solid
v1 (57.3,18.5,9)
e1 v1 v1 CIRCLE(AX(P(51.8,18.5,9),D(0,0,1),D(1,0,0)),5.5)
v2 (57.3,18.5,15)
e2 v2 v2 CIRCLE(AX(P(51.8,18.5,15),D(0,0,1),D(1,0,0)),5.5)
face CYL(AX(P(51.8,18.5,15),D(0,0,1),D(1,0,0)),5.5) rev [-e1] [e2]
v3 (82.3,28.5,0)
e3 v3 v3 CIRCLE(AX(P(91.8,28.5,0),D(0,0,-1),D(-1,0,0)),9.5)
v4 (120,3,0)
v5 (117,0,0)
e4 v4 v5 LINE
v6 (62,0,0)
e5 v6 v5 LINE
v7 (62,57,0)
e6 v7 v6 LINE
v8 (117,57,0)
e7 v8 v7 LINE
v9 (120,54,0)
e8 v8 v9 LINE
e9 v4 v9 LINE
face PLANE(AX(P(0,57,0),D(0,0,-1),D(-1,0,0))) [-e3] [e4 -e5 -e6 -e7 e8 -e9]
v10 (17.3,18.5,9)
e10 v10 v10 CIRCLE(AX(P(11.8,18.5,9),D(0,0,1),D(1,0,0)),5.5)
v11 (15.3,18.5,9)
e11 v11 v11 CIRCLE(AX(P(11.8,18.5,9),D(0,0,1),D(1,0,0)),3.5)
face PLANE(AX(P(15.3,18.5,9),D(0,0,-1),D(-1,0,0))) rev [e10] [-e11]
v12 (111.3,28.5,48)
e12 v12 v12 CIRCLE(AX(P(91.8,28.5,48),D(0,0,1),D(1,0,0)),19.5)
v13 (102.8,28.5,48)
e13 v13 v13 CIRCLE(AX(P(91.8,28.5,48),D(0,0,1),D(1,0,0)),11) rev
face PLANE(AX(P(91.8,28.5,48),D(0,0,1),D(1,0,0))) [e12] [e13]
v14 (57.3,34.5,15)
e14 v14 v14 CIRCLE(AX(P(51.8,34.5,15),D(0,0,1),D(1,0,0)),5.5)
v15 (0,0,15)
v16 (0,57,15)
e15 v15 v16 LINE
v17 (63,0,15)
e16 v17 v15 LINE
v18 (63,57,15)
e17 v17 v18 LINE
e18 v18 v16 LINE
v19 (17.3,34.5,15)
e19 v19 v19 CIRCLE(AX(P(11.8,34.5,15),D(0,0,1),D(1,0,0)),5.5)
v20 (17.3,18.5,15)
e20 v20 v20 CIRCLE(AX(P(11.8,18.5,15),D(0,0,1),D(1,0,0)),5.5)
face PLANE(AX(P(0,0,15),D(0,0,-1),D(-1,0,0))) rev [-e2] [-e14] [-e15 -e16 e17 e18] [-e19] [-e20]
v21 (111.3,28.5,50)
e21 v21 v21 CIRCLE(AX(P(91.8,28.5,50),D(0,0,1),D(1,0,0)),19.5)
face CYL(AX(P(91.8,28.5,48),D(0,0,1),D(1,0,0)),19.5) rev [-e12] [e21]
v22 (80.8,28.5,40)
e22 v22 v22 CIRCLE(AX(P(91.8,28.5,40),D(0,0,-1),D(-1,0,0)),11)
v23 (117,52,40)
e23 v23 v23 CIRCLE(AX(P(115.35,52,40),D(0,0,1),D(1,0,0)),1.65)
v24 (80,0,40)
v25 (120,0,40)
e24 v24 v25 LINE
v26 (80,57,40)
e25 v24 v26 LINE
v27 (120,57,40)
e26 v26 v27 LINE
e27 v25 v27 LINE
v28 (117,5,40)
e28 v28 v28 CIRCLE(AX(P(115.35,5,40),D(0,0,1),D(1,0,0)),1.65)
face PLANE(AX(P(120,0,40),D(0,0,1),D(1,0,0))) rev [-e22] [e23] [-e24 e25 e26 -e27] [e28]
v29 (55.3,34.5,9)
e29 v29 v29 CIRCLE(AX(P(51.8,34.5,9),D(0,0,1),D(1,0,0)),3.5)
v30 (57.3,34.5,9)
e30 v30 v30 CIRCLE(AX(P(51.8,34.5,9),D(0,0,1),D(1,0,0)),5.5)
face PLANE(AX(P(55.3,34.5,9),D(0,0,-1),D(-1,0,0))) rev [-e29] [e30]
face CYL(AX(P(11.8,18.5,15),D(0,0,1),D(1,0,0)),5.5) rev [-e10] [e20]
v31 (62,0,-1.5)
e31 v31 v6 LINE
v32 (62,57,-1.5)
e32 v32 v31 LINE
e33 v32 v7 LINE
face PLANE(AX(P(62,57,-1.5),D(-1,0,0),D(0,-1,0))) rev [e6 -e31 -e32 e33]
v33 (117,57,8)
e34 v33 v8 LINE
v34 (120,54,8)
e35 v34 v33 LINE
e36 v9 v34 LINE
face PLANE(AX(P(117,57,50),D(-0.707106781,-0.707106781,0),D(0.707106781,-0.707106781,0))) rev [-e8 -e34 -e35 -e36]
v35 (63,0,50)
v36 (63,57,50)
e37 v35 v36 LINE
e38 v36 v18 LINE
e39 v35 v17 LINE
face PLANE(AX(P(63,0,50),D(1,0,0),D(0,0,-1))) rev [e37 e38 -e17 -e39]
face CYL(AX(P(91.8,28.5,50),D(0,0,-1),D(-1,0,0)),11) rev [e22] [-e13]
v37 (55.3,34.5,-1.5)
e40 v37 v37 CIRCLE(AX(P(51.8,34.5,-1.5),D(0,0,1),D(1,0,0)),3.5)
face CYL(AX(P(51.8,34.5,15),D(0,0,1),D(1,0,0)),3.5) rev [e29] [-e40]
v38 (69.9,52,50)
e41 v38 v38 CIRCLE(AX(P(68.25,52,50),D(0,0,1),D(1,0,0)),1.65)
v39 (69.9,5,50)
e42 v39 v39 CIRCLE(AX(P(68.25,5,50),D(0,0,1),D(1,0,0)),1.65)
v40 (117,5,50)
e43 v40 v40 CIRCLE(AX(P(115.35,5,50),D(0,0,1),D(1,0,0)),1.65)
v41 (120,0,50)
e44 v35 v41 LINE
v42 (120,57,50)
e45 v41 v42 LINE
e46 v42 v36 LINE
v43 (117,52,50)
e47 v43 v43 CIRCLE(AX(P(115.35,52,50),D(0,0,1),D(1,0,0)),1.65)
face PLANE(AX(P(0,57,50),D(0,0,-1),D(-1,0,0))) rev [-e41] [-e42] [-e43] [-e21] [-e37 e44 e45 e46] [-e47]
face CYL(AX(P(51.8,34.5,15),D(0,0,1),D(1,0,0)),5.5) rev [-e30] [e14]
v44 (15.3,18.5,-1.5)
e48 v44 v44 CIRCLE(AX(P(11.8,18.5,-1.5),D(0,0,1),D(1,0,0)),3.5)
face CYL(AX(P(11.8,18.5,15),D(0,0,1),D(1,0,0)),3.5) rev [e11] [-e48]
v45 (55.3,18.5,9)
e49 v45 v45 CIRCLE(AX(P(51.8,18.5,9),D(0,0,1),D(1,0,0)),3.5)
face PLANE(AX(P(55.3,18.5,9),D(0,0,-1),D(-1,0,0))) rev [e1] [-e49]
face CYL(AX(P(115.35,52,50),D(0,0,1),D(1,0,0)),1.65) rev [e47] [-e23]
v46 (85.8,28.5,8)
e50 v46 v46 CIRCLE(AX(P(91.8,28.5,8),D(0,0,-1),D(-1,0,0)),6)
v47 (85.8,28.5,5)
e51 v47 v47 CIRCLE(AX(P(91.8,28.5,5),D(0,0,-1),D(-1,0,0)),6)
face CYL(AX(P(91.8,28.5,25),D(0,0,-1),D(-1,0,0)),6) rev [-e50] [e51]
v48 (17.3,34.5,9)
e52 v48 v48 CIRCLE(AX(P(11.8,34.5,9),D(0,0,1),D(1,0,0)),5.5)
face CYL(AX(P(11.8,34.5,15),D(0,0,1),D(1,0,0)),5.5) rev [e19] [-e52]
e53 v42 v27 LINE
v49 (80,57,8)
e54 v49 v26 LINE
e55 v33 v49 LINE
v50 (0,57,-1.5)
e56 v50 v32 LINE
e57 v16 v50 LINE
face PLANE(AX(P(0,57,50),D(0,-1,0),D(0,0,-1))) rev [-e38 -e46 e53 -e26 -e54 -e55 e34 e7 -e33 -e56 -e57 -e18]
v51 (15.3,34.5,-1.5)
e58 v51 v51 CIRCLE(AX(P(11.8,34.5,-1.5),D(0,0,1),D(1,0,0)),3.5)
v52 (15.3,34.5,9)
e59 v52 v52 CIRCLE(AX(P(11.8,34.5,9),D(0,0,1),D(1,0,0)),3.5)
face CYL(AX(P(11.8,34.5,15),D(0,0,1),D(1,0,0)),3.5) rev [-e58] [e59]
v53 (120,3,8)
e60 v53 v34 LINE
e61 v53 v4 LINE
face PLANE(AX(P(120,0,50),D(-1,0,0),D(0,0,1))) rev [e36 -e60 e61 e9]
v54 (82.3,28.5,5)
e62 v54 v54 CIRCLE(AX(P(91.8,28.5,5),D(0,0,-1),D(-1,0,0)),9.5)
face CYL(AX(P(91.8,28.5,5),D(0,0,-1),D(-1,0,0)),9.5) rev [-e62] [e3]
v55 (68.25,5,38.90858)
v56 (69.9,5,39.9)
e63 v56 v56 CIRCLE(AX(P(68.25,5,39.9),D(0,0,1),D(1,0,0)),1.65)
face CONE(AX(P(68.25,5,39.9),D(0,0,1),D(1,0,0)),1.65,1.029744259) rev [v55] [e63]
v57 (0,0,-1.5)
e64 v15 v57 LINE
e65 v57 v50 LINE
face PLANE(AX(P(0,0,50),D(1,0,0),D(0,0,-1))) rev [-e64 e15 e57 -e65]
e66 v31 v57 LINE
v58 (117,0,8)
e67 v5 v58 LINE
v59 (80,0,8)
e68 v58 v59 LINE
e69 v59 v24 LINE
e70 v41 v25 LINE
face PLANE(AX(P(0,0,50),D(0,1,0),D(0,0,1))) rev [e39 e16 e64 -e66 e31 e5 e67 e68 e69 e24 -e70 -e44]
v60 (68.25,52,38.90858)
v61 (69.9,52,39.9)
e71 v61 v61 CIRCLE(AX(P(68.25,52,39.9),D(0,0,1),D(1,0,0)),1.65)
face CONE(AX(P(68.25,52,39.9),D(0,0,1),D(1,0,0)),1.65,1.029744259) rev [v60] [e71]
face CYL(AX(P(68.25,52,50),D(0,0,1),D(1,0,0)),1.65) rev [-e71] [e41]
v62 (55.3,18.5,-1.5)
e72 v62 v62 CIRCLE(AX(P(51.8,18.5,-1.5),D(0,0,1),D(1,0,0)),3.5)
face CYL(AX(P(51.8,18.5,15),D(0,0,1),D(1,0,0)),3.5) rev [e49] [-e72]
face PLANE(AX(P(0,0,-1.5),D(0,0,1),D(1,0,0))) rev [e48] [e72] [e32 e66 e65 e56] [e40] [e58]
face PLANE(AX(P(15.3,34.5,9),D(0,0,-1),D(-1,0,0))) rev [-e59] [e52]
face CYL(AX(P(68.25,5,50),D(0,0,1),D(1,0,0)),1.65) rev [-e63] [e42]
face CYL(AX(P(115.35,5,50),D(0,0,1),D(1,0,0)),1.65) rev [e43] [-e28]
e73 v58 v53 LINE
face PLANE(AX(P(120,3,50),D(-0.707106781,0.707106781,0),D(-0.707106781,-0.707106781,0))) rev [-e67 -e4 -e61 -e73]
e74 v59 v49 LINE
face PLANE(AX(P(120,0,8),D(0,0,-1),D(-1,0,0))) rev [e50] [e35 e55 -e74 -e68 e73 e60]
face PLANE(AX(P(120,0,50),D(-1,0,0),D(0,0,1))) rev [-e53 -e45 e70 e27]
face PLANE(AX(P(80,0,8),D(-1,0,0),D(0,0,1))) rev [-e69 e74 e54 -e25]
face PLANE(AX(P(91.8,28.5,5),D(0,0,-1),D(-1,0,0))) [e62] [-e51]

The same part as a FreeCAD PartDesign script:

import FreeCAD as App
import Part
import Sketcher

V = App.Vector


def edges_at(feature, points):
    """Names of the edges that pass closest to the given points."""
    edges = feature.Shape.Edges
    near = lambda p: min(range(len(edges)), key=lambda i: edges[i].distToShape(Part.Vertex(*p))[0])
    return sorted({f"Edge{near(p) + 1}" for p in points})

doc = App.newDocument("Part")
params = doc.addObject("Spreadsheet::Sheet", "Params")
for row, (alias, value) in enumerate([
    ("sketch1_width", "120 mm"),
    ("sketch1_height", "57 mm"),
    ("pad1_length", "50 mm"),
    ("sketch2_width", "40 mm"),
    ("sketch2_height", "32 mm"),
    ("sketch3_width", "63 mm"),
    ("sketch3_height", "35 mm"),
    ("sketch4_width", "62 mm"),
    ("sketch4_height", "57 mm"),
    ("pad2_length", "1.5 mm"),
    ("sketch5_diameter", "19 mm"),
    ("pocket3_length", "5 mm"),
    ("sketch6_diameter", "12 mm"),
    ("pocket4_length", "20 mm"),
    ("sketch7_diameter", "22 mm"),
    ("chamfer_size", "3 mm"),
    ("sketch8_diameter", "39 mm"),
    ("pocket6_length", "2 mm"),
    ("sketch9_diameter", "7 mm"),
    ("hole_diameter", "7 mm"),
    ("hole_cbore_diameter", "11 mm"),
    ("hole_cbore_depth", "6 mm"),
    ("sketch10_diameter", "3.3 mm"),
    ("hole2_diameter", "3.3 mm"),
    ("hole2_depth", "10.1 mm"),
], start=1):
    params.set(f"A{row}", alias)
    params.set(f"B{row}", "=" + value)
    params.setAlias(f"B{row}", alias)

body = doc.addObject("PartDesign::Body", "Body")

# Sketch on XY plane
sketch1 = body.newObject("Sketcher::SketchObject", "Sketch")
sketch1.AttachmentSupport = (doc.getObject("XY_Plane"), [""])
sketch1.MapMode = "FlatFace"
sketch1.addGeometry(Part.LineSegment(V(0, 57, 0), V(0, 0, 0)), False)
sketch1.addGeometry(Part.LineSegment(V(0, 0, 0), V(120, 0, 0)), False)
sketch1.addGeometry(Part.LineSegment(V(120, 0, 0), V(120, 57, 0)), False)
sketch1.addGeometry(Part.LineSegment(V(120, 57, 0), V(0, 57, 0)), False)
sketch1.addConstraint(Sketcher.Constraint("Coincident", 0, 2, 1, 1))
sketch1.addConstraint(Sketcher.Constraint("Coincident", 1, 2, 2, 1))
sketch1.addConstraint(Sketcher.Constraint("Coincident", 2, 2, 3, 1))
sketch1.addConstraint(Sketcher.Constraint("Coincident", 3, 2, 0, 1))
sketch1.addConstraint(Sketcher.Constraint("Vertical", 0))
sketch1.addConstraint(Sketcher.Constraint("Horizontal", 1))
sketch1.addConstraint(Sketcher.Constraint("Vertical", 2))
sketch1.addConstraint(Sketcher.Constraint("Horizontal", 3))
sketch1.addConstraint(Sketcher.Constraint("Coincident", 0, 2, -1, 1))
sketch1.addConstraint(Sketcher.Constraint("DistanceX", 1, 1, 1, 2, 120.0))
sketch1.addConstraint(Sketcher.Constraint("DistanceY", 0, 2, 0, 1, 57.0))
sketch1.setExpression("Constraints[9]", "Params.sketch1_width")
sketch1.setExpression("Constraints[10]", "Params.sketch1_height")
pad1 = body.newObject("PartDesign::Pad", "Pad")
pad1.Profile = sketch1
pad1.setExpression("Length", "Params.pad1_length")

# Sketch on XZ plane
sketch2 = body.newObject("Sketcher::SketchObject", "Sketch001")
sketch2.AttachmentSupport = (doc.getObject("XZ_Plane"), [""])
sketch2.MapMode = "FlatFace"
sketch2.AttachmentOffset = App.Placement(V(0, 0, -57), App.Rotation())
sketch2.addGeometry(Part.LineSegment(V(80, 8, 0), V(80, 40, 0)), False)
sketch2.addGeometry(Part.LineSegment(V(80, 40, 0), V(120, 40, 0)), False)
sketch2.addGeometry(Part.LineSegment(V(120, 40, 0), V(120, 8, 0)), False)
sketch2.addGeometry(Part.LineSegment(V(120, 8, 0), V(80, 8, 0)), False)
sketch2.addConstraint(Sketcher.Constraint("Coincident", 0, 2, 1, 1))
sketch2.addConstraint(Sketcher.Constraint("Coincident", 1, 2, 2, 1))
sketch2.addConstraint(Sketcher.Constraint("Coincident", 2, 2, 3, 1))
sketch2.addConstraint(Sketcher.Constraint("Coincident", 3, 2, 0, 1))
sketch2.addConstraint(Sketcher.Constraint("Vertical", 0))
sketch2.addConstraint(Sketcher.Constraint("Horizontal", 1))
sketch2.addConstraint(Sketcher.Constraint("Vertical", 2))
sketch2.addConstraint(Sketcher.Constraint("Horizontal", 3))
sketch2.addConstraint(Sketcher.Constraint("DistanceX", 1, 1, 1, 2, 40.0))
sketch2.addConstraint(Sketcher.Constraint("DistanceY", 0, 1, 0, 2, 32.0))
sketch2.addConstraint(Sketcher.Constraint("DistanceX", -1, 1, 0, 2, 80.0))
sketch2.addConstraint(Sketcher.Constraint("DistanceY", -1, 1, 0, 2, 40.0))
sketch2.setExpression("Constraints[8]", "Params.sketch2_width")
sketch2.setExpression("Constraints[9]", "Params.sketch2_height")
pocket1 = body.newObject("PartDesign::Pocket", "Pocket")
pocket1.Profile = sketch2
pocket1.Type = "ThroughAll"
pocket1.Reversed = True

# Sketch on XZ plane
sketch3 = body.newObject("Sketcher::SketchObject", "Sketch002")
sketch3.AttachmentSupport = (doc.getObject("XZ_Plane"), [""])
sketch3.MapMode = "FlatFace"
sketch3.AttachmentOffset = App.Placement(V(0, 0, -57), App.Rotation())
sketch3.addGeometry(Part.LineSegment(V(63, 50, 0), V(63, 15, 0)), False)
sketch3.addGeometry(Part.LineSegment(V(63, 15, 0), V(0, 15, 0)), False)
sketch3.addGeometry(Part.LineSegment(V(0, 15, 0), V(0, 50, 0)), False)
sketch3.addGeometry(Part.LineSegment(V(0, 50, 0), V(63, 50, 0)), False)
sketch3.addConstraint(Sketcher.Constraint("Coincident", 0, 2, 1, 1))
sketch3.addConstraint(Sketcher.Constraint("Coincident", 1, 2, 2, 1))
sketch3.addConstraint(Sketcher.Constraint("Coincident", 2, 2, 3, 1))
sketch3.addConstraint(Sketcher.Constraint("Coincident", 3, 2, 0, 1))
sketch3.addConstraint(Sketcher.Constraint("Vertical", 0))
sketch3.addConstraint(Sketcher.Constraint("Horizontal", 1))
sketch3.addConstraint(Sketcher.Constraint("Vertical", 2))
sketch3.addConstraint(Sketcher.Constraint("Horizontal", 3))
sketch3.addConstraint(Sketcher.Constraint("PointOnObject", 1, 2, -2))
sketch3.addConstraint(Sketcher.Constraint("DistanceX", 1, 2, 1, 1, 63.0))
sketch3.addConstraint(Sketcher.Constraint("DistanceY", 0, 2, 0, 1, 35.0))
sketch3.addConstraint(Sketcher.Constraint("DistanceY", -1, 1, 0, 2, 15.0))
sketch3.setExpression("Constraints[9]", "Params.sketch3_width")
sketch3.setExpression("Constraints[10]", "Params.sketch3_height")
pocket2 = body.newObject("PartDesign::Pocket", "Pocket001")
pocket2.Profile = sketch3
pocket2.Type = "ThroughAll"
pocket2.Reversed = True

# Sketch on XY plane
sketch4 = body.newObject("Sketcher::SketchObject", "Sketch003")
sketch4.AttachmentSupport = (doc.getObject("XY_Plane"), [""])
sketch4.MapMode = "FlatFace"
sketch4.addGeometry(Part.LineSegment(V(62, 57, 0), V(62, 0, 0)), False)
sketch4.addGeometry(Part.LineSegment(V(62, 0, 0), V(0, 0, 0)), False)
sketch4.addGeometry(Part.LineSegment(V(0, 0, 0), V(0, 57, 0)), False)
sketch4.addGeometry(Part.LineSegment(V(0, 57, 0), V(62, 57, 0)), False)
sketch4.addConstraint(Sketcher.Constraint("Coincident", 0, 2, 1, 1))
sketch4.addConstraint(Sketcher.Constraint("Coincident", 1, 2, 2, 1))
sketch4.addConstraint(Sketcher.Constraint("Coincident", 2, 2, 3, 1))
sketch4.addConstraint(Sketcher.Constraint("Coincident", 3, 2, 0, 1))
sketch4.addConstraint(Sketcher.Constraint("Vertical", 0))
sketch4.addConstraint(Sketcher.Constraint("Horizontal", 1))
sketch4.addConstraint(Sketcher.Constraint("Vertical", 2))
sketch4.addConstraint(Sketcher.Constraint("Horizontal", 3))
sketch4.addConstraint(Sketcher.Constraint("Coincident", 1, 2, -1, 1))
sketch4.addConstraint(Sketcher.Constraint("DistanceX", 1, 2, 1, 1, 62.0))
sketch4.addConstraint(Sketcher.Constraint("DistanceY", 0, 2, 0, 1, 57.0))
sketch4.setExpression("Constraints[9]", "Params.sketch4_width")
sketch4.setExpression("Constraints[10]", "Params.sketch4_height")
pad2 = body.newObject("PartDesign::Pad", "Pad001")
pad2.Profile = sketch4
pad2.setExpression("Length", "Params.pad2_length")
pad2.Reversed = True

# Sketch on XY plane
sketch5 = body.newObject("Sketcher::SketchObject", "Sketch004")
sketch5.AttachmentSupport = (doc.getObject("XY_Plane"), [""])
sketch5.MapMode = "FlatFace"
sketch5.addGeometry(Part.Circle(V(92, 28, 0), V(0, 0, 1), 10), False)
sketch5.addConstraint(Sketcher.Constraint("Diameter", 0, 19.0))
sketch5.addConstraint(Sketcher.Constraint("DistanceX", -1, 1, 0, 3, 91.8))
sketch5.addConstraint(Sketcher.Constraint("DistanceY", -1, 1, 0, 3, 28.5))
sketch5.setExpression("Constraints[0]", "Params.sketch5_diameter")
pocket3 = body.newObject("PartDesign::Pocket", "Pocket002")
pocket3.Profile = sketch5
pocket3.setExpression("Length", "Params.pocket3_length")
pocket3.Reversed = True

# Sketch on XY plane
sketch6 = body.newObject("Sketcher::SketchObject", "Sketch005")
sketch6.AttachmentSupport = (doc.getObject("XY_Plane"), [""])
sketch6.MapMode = "FlatFace"
sketch6.AttachmentOffset = App.Placement(V(0, 0, 5), App.Rotation())
sketch6.addGeometry(Part.Circle(V(92, 28, 0), V(0, 0, 1), 6), False)
sketch6.addConstraint(Sketcher.Constraint("Diameter", 0, 12.0))
sketch6.addConstraint(Sketcher.Constraint("DistanceX", -1, 1, 0, 3, 91.8))
sketch6.addConstraint(Sketcher.Constraint("DistanceY", -1, 1, 0, 3, 28.5))
sketch6.setExpression("Constraints[0]", "Params.sketch6_diameter")
pocket4 = body.newObject("PartDesign::Pocket", "Pocket003")
pocket4.Profile = sketch6
pocket4.setExpression("Length", "Params.pocket4_length")
pocket4.Reversed = True

# Sketch on XY plane
sketch7 = body.newObject("Sketcher::SketchObject", "Sketch006")
sketch7.AttachmentSupport = (doc.getObject("XY_Plane"), [""])
sketch7.MapMode = "FlatFace"
sketch7.AttachmentOffset = App.Placement(V(0, 0, 40), App.Rotation())
sketch7.addGeometry(Part.Circle(V(92, 28, 0), V(0, 0, 1), 11), False)
sketch7.addConstraint(Sketcher.Constraint("Diameter", 0, 22.0))
sketch7.addConstraint(Sketcher.Constraint("DistanceX", -1, 1, 0, 3, 91.8))
sketch7.addConstraint(Sketcher.Constraint("DistanceY", -1, 1, 0, 3, 28.5))
sketch7.setExpression("Constraints[0]", "Params.sketch7_diameter")
pocket5 = body.newObject("PartDesign::Pocket", "Pocket004")
pocket5.Profile = sketch7
pocket5.Type = "ThroughAll"
pocket5.Reversed = True
doc.recompute()

chamfer = body.newObject("PartDesign::Chamfer", "Chamfer")
chamfer.Base = (pocket5, edges_at(pocket5, [(120, 0, 4), (120, 57, 4)]))
chamfer.setExpression("Size", "Params.chamfer_size")

# Sketch on XY plane
sketch8 = body.newObject("Sketcher::SketchObject", "Sketch007")
sketch8.AttachmentSupport = (doc.getObject("XY_Plane"), [""])
sketch8.MapMode = "FlatFace"
sketch8.AttachmentOffset = App.Placement(V(0, 0, 50), App.Rotation())
sketch8.addGeometry(Part.Circle(V(92, 28, 0), V(0, 0, 1), 20), False)
sketch8.addConstraint(Sketcher.Constraint("Diameter", 0, 39.0))
sketch8.addConstraint(Sketcher.Constraint("DistanceX", -1, 1, 0, 3, 91.8))
sketch8.addConstraint(Sketcher.Constraint("DistanceY", -1, 1, 0, 3, 28.5))
sketch8.setExpression("Constraints[0]", "Params.sketch8_diameter")
pocket6 = body.newObject("PartDesign::Pocket", "Pocket005")
pocket6.Profile = sketch8
pocket6.setExpression("Length", "Params.pocket6_length")

# Sketch on XY plane
sketch9 = body.newObject("Sketcher::SketchObject", "Sketch008")
sketch9.AttachmentSupport = (doc.getObject("XY_Plane"), [""])
sketch9.MapMode = "FlatFace"
sketch9.AttachmentOffset = App.Placement(V(0, 0, 15), App.Rotation())
sketch9.addGeometry(Part.Circle(V(11.8, 34.5, 0), V(0, 0, 1), 3.5), False)
sketch9.addGeometry(Part.Circle(V(11.8, 18.5, 0), V(0, 0, 1), 3.5), False)
sketch9.addGeometry(Part.Circle(V(51.8, 18.5, 0), V(0, 0, 1), 3.5), False)
sketch9.addGeometry(Part.Circle(V(51.8, 34.5, 0), V(0, 0, 1), 3.5), False)
sketch9.addConstraint(Sketcher.Constraint("Equal", 0, 1))
sketch9.addConstraint(Sketcher.Constraint("Equal", 1, 2))
sketch9.addConstraint(Sketcher.Constraint("Equal", 2, 3))
sketch9.addConstraint(Sketcher.Constraint("Horizontal", 1, 3, 2, 3))
sketch9.addConstraint(Sketcher.Constraint("Horizontal", 0, 3, 3, 3))
sketch9.addConstraint(Sketcher.Constraint("Vertical", 0, 3, 1, 3))
sketch9.addConstraint(Sketcher.Constraint("Vertical", 2, 3, 3, 3))
sketch9.addConstraint(Sketcher.Constraint("Diameter", 0, 7.0))
sketch9.addConstraint(Sketcher.Constraint("DistanceY", 1, 3, 0, 3, 16.0))
sketch9.addConstraint(Sketcher.Constraint("DistanceX", 1, 3, 2, 3, 40.0))
sketch9.addConstraint(Sketcher.Constraint("DistanceX", -1, 1, 0, 3, 11.8))
sketch9.addConstraint(Sketcher.Constraint("DistanceY", -1, 1, 0, 3, 34.5))
sketch9.setExpression("Constraints[7]", "Params.sketch9_diameter")
doc.recompute()
hole = body.newObject("PartDesign::Hole", "Hole")
hole.Profile = sketch9
hole.ThreadType = "None"
hole.setExpression("Diameter", "Params.hole_diameter")
hole.DepthType = "ThroughAll"
hole.HoleCutType = "Counterbore"
hole.setExpression("HoleCutDiameter", "Params.hole_cbore_diameter")
hole.setExpression("HoleCutDepth", "Params.hole_cbore_depth")

# Sketch on XY plane
sketch10 = body.newObject("Sketcher::SketchObject", "Sketch009")
sketch10.AttachmentSupport = (doc.getObject("XY_Plane"), [""])
sketch10.MapMode = "FlatFace"
sketch10.AttachmentOffset = App.Placement(V(0, 0, 50), App.Rotation())
sketch10.addGeometry(Part.Circle(V(68.2, 52, 0), V(0, 0, 1), 1.6), False)
sketch10.addGeometry(Part.Circle(V(115.3, 5, 0), V(0, 0, 1), 1.6), False)
sketch10.addGeometry(Part.Circle(V(115.3, 52, 0), V(0, 0, 1), 1.6), False)
sketch10.addGeometry(Part.Circle(V(68.2, 5, 0), V(0, 0, 1), 1.6), False)
sketch10.addConstraint(Sketcher.Constraint("Equal", 0, 1))
sketch10.addConstraint(Sketcher.Constraint("Equal", 1, 2))
sketch10.addConstraint(Sketcher.Constraint("Equal", 2, 3))
sketch10.addConstraint(Sketcher.Constraint("Horizontal", 0, 3, 2, 3))
sketch10.addConstraint(Sketcher.Constraint("Horizontal", 1, 3, 3, 3))
sketch10.addConstraint(Sketcher.Constraint("Vertical", 1, 3, 2, 3))
sketch10.addConstraint(Sketcher.Constraint("Vertical", 0, 3, 3, 3))
sketch10.addConstraint(Sketcher.Constraint("Diameter", 0, 3.3))
sketch10.addConstraint(Sketcher.Constraint("DistanceY", -1, 1, 0, 3, 52.0))
sketch10.addConstraint(Sketcher.Constraint("DistanceY", -1, 1, 1, 3, 5.0))
sketch10.addConstraint(Sketcher.Constraint("DistanceX", 0, 3, 1, 3, 47.1))
sketch10.addConstraint(Sketcher.Constraint("DistanceX", -1, 1, 0, 3, 68.25))
sketch10.setExpression("Constraints[7]", "Params.sketch10_diameter")
doc.recompute()
hole2 = body.newObject("PartDesign::Hole", "Hole001")
hole2.Profile = sketch10
hole2.ThreadType = "None"
hole2.setExpression("Diameter", "Params.hole2_diameter")
hole2.DepthType = "Dimension"
hole2.setExpression("Depth", "Params.hole2_depth")
hole2.DrillPoint = "Angled"
hole2.DrillPointAngle = 118

doc.recompute()
